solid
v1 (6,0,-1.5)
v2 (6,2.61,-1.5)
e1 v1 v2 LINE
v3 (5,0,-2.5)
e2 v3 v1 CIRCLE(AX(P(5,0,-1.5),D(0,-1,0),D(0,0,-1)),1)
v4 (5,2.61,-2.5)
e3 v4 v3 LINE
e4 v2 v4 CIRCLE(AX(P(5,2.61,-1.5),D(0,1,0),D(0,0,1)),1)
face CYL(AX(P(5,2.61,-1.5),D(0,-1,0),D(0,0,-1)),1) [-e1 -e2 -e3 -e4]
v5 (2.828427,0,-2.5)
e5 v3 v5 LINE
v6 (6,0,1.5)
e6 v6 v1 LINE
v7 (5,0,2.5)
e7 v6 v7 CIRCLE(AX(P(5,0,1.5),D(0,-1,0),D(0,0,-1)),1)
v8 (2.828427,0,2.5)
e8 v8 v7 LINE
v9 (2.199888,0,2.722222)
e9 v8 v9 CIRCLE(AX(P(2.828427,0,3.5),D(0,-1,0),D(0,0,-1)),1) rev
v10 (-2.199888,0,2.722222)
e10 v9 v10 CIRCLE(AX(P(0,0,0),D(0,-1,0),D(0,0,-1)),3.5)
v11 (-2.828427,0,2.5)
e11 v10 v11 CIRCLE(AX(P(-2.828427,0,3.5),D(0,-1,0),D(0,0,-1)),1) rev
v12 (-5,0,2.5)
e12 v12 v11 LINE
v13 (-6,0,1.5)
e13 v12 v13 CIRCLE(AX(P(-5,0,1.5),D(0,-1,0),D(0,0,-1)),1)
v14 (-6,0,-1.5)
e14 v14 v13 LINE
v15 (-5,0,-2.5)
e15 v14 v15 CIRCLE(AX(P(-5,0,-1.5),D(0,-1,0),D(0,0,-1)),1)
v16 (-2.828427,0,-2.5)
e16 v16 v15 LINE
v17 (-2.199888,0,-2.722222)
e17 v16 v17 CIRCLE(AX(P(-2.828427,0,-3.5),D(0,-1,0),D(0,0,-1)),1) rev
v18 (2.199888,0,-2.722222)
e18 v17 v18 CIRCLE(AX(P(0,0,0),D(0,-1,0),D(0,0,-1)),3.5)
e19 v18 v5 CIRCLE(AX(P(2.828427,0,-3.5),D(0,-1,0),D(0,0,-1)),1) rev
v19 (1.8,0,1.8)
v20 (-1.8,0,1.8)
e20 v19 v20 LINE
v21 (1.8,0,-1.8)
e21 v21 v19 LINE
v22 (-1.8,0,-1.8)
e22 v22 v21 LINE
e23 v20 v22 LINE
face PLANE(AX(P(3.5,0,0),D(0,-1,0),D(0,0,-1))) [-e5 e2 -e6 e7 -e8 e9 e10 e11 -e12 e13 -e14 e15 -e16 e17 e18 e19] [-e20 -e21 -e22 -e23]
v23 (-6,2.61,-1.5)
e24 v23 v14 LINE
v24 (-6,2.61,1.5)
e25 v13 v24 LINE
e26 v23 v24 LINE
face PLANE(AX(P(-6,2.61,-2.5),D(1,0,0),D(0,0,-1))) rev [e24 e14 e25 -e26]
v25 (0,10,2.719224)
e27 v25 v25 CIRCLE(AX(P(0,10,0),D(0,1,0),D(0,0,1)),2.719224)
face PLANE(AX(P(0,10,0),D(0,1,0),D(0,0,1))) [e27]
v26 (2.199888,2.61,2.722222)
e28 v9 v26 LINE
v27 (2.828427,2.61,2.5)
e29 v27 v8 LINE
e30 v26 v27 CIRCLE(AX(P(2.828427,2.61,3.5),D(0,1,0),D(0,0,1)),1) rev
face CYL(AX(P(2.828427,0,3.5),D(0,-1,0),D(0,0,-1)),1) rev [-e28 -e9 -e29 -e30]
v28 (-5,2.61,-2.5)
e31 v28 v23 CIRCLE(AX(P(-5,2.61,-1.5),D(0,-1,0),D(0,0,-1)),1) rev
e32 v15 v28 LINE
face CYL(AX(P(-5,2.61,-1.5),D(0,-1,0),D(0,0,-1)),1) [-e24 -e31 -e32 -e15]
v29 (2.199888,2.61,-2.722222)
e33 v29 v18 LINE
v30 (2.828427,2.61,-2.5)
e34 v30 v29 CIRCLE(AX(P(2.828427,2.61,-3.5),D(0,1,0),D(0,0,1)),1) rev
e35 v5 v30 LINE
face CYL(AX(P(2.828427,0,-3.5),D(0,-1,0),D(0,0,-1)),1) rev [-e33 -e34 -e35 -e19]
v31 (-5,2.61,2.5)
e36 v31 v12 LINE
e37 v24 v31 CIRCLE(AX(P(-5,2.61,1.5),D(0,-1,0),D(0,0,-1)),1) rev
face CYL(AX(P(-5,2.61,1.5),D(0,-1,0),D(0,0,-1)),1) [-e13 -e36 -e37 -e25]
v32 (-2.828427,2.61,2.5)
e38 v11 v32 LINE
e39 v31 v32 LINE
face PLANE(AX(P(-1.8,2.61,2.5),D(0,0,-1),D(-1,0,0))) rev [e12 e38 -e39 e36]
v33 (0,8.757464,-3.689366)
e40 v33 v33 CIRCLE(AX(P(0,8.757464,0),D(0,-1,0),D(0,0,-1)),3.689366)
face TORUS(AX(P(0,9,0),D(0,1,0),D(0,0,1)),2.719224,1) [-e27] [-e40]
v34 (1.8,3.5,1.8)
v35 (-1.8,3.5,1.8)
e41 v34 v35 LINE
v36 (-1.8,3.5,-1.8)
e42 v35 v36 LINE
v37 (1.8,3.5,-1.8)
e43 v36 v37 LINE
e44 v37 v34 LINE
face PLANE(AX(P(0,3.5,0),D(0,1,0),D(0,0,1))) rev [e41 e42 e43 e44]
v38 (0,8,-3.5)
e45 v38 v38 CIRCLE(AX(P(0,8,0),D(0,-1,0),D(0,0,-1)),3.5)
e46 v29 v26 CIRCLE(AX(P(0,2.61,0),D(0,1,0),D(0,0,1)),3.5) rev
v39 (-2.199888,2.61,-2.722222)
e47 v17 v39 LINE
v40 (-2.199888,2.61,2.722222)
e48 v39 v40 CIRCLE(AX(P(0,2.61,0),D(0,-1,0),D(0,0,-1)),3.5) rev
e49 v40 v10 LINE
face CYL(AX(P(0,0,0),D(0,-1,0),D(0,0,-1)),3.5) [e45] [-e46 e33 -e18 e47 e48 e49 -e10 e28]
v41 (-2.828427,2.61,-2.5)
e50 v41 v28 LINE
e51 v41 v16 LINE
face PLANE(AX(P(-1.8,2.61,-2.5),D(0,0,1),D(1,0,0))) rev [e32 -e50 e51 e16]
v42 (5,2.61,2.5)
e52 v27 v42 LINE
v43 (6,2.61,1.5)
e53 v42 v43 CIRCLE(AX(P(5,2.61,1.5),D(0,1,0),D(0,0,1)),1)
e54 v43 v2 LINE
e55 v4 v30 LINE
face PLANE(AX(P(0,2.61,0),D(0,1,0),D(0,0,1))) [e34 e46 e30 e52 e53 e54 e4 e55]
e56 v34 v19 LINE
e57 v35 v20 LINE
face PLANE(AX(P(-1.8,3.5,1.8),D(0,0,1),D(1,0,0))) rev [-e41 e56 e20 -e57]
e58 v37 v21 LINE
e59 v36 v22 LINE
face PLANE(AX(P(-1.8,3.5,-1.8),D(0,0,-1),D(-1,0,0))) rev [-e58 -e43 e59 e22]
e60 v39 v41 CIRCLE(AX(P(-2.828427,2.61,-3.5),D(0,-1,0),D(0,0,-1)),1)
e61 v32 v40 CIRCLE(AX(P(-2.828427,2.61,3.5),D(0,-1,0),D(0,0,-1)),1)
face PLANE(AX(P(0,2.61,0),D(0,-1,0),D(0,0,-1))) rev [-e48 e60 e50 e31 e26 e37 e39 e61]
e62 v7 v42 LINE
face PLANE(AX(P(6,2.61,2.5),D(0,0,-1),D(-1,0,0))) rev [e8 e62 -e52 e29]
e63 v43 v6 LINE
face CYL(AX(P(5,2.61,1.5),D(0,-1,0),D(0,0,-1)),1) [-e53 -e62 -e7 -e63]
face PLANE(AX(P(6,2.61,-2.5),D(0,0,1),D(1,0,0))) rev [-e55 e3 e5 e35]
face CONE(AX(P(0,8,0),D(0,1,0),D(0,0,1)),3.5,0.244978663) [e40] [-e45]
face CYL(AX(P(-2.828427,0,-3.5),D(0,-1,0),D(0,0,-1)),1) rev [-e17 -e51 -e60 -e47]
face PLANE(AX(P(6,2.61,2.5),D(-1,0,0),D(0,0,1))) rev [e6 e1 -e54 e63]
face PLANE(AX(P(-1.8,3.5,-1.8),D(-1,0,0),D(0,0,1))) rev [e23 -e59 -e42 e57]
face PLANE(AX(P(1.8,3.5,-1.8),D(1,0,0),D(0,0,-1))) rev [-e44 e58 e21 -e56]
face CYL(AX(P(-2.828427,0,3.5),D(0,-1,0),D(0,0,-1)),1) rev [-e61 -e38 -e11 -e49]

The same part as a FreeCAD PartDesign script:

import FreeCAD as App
import Part
import Sketcher
Q = App.Units.Quantity


def edges_at(feature, points):
    """Names of the edges that pass closest to the given points."""
    edges = feature.Shape.Edges
    near = lambda p: min(range(len(edges)), key=lambda i: edges[i].distToShape(Part.Vertex(*p))[0])
    return sorted({f"Edge{near(p) + 1}" for p in points})


def add_polygon(sketch, points):
    """Adds a closed chain of lines whose ends are joined by coincident constraints."""
    first, n = sketch.GeometryCount, len(points)
    for a, b in zip(points, points[1:] + points[:1]):
        sketch.addGeometry(Part.LineSegment(App.Vector(*a, 0), App.Vector(*b, 0)), False)
    for i in range(n):
        sketch.addConstraint(Sketcher.Constraint("Coincident", first + i, 2, first + (i + 1) % n, 1))

doc = App.newDocument("Part")
body = doc.addObject("PartDesign::Body", "Body")

# Sketch on XY plane
sketch1 = body.newObject("Sketcher::SketchObject", "Sketch")
sketch1.AttachmentSupport = (doc.getObject("XY_Plane"), [""])
sketch1.MapMode = "FlatFace"
add_polygon(sketch1, [(0, 10), (0, 0), (3.5, 0), (3.5, 8), (4, 10)])  # lines 0-4
sketch1.addConstraint([
    Sketcher.Constraint("Vertical", 0),
    Sketcher.Constraint("Horizontal", 1),
    Sketcher.Constraint("Vertical", 2),
    Sketcher.Constraint("Horizontal", 4),
    Sketcher.Constraint("Coincident", 0, 2, -1, 1),
    Sketcher.Constraint("DistanceX", 4, 2, 4, 1, Q("4 mm")),
    Sketcher.Constraint("DistanceY", 0, 2, 0, 1, Q("10 mm")),
    Sketcher.Constraint("DistanceY", 2, 1, 2, 2, Q("8 mm")),
    Sketcher.Constraint("DistanceX", 1, 1, 1, 2, Q("3.5 mm")),
])
revolution = body.newObject("PartDesign::Revolution", "Revolution")
revolution.Profile = sketch1
revolution.ReferenceAxis = (sketch1, ["V_Axis"])
revolution.Angle = 360

# Sketch on XZ plane
sketch2 = body.newObject("Sketcher::SketchObject", "Sketch001")
sketch2.AttachmentSupport = (doc.getObject("XZ_Plane"), [""])
sketch2.MapMode = "FlatFace"
add_polygon(sketch2, [(-1.8, 1.8), (-1.8, -1.8), (1.8, -1.8), (1.8, 1.8)])  # lines 0-3
sketch2.addConstraint([
    Sketcher.Constraint("Vertical", 0),
    Sketcher.Constraint("Horizontal", 1),
    Sketcher.Constraint("Vertical", 2),
    Sketcher.Constraint("Horizontal", 3),
    Sketcher.Constraint("Symmetric", 0, 2, 2, 2, -1, 1),
    Sketcher.Constraint("Equal", 3, 0),
    Sketcher.Constraint("DistanceX", 1, 1, 1, 2, Q("3.6 mm")),
])
pocket1 = body.newObject("PartDesign::Pocket", "Pocket")
pocket1.Profile = sketch2
pocket1.Length = 3.5

# Sketch on XZ plane
sketch3 = body.newObject("Sketcher::SketchObject", "Sketch002")
sketch3.AttachmentSupport = (doc.getObject("XZ_Plane"), [""])
sketch3.MapMode = "FlatFace"
add_polygon(sketch3, [(-6, -2.5), (-6, 2.5), (-1.8, 2.5), (-1.8, -2.5)])  # lines 0-3
add_polygon(sketch3, [(1.8, -2.5), (1.8, 2.5), (6, 2.5), (6, -2.5)])  # lines 4-7
sketch3.addConstraint([
    Sketcher.Constraint("Vertical", 0),
    Sketcher.Constraint("Horizontal", 1),
    Sketcher.Constraint("Vertical", 2),
    Sketcher.Constraint("Horizontal", 3),
    Sketcher.Constraint("Vertical", 4),
    Sketcher.Constraint("Horizontal", 5),
    Sketcher.Constraint("Vertical", 6),
    Sketcher.Constraint("Horizontal", 7),
    Sketcher.Constraint("Symmetric", 2, 2, 4, 2, -1, 1),
    Sketcher.Constraint("Symmetric", 0, 2, 6, 2, -1, 1),
    Sketcher.Constraint("Horizontal", 1, 2, 4, 2),
    Sketcher.Constraint("DistanceY", 0, 1, 0, 2, Q("5 mm")),
    Sketcher.Constraint("DistanceX", 1, 1, 1, 2, Q("4.2 mm")),
    Sketcher.Constraint("DistanceX", 0, 2, -1, 1, Q("6 mm")),
])
pad1 = body.newObject("PartDesign::Pad", "Pad")
pad1.Profile = sketch3
pad1.Length = 2.61
pad1.Reversed = True
doc.recompute()

fillet = body.newObject("PartDesign::Fillet", "Fillet")
fillet.Base = (pad1, edges_at(pad1, [
    (-2.449, 1.305, -2.5),
    (-2.449, 1.305, 2.5),
    (-6, 1.305, -2.5),
    (-6, 1.305, 2.5),
    (0, 10, 4),
    (2.449, 1.305, 2.5),
    (2.449, 1.305, -2.5),
    (6, 1.305, 2.5),
    (6, 1.305, -2.5),
]))
fillet.Radius = 1

doc.recompute()
